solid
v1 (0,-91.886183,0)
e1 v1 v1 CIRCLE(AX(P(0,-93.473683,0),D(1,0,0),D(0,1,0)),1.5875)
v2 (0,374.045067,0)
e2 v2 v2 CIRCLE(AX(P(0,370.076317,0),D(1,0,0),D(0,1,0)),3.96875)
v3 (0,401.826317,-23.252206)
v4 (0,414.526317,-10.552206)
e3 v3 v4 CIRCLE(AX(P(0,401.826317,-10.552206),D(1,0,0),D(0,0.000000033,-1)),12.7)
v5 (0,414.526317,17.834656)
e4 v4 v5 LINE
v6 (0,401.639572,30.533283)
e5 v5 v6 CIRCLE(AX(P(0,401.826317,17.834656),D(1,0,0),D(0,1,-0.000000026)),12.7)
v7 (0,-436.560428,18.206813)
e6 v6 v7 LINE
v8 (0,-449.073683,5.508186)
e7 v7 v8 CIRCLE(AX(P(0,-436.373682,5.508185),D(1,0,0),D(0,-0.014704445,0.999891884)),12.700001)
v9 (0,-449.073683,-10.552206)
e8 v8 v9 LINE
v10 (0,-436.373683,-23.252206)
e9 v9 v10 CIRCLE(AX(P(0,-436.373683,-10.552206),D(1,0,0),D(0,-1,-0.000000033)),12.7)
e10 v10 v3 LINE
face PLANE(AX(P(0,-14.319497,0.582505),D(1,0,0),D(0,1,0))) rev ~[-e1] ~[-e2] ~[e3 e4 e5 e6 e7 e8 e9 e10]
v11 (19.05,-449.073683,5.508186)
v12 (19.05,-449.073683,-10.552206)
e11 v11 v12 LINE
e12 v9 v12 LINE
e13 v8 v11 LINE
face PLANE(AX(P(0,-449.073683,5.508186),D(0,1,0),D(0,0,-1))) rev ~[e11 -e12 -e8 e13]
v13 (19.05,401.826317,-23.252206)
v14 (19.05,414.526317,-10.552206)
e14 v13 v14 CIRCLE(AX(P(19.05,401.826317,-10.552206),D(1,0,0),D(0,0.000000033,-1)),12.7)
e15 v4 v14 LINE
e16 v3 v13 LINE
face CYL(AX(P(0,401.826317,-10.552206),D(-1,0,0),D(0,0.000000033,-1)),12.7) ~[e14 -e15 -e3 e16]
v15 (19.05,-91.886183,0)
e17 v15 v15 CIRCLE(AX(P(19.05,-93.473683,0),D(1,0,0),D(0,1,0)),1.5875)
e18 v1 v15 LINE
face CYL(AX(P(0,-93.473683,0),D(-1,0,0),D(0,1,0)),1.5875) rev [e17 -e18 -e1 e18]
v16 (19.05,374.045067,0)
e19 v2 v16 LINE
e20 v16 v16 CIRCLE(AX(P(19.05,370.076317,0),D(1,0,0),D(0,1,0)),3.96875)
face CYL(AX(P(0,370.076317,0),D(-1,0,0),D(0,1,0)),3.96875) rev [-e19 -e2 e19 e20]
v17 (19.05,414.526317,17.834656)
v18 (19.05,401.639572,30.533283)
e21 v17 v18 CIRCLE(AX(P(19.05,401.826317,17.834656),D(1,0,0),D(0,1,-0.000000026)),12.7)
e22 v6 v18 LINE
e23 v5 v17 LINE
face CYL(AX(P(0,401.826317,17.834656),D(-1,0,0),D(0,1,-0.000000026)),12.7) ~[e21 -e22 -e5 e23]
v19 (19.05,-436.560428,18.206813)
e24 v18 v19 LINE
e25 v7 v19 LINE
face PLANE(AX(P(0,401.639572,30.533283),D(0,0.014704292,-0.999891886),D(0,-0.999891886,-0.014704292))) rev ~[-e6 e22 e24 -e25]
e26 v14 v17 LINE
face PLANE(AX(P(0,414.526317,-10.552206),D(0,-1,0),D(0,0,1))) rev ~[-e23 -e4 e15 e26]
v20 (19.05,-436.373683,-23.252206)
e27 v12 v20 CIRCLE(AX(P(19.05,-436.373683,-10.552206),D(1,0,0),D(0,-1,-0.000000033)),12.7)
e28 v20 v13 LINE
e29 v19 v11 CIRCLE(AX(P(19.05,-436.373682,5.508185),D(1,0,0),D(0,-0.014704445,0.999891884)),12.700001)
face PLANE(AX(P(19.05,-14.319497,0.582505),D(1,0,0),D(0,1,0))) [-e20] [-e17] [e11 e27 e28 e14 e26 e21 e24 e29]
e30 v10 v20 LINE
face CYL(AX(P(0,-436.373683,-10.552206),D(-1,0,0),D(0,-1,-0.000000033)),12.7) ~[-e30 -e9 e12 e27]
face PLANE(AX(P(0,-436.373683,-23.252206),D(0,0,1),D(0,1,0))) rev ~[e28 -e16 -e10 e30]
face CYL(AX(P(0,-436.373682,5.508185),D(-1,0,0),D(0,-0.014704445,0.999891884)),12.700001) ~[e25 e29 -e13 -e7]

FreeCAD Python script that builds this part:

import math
import FreeCAD as App
import Part
import Sketcher
Q = App.Units.Quantity

doc = App.newDocument("Part")
params = doc.addObject("Spreadsheet::Sheet", "Params")
for row, (alias, value) in enumerate([
    ("sketch1_radius", "0.5 in"),
    ("sketch1_width", "33 in"),
    ("sketch1_diameter", "0.125 in"),
    ("sketch1_diameter2", "0.3125 in"),
    ("pad1_length", "0.75 in"),
    ("sketch2_diameter", "0.125 in"),
    ("pocket1_length", "2.07 in"),
], start=1):
    params.set(f"A{row}", alias)
    params.set(f"B{row}", "=" + value)
    params.setAlias(f"B{row}", alias)

body = doc.addObject("PartDesign::Body", "Body")

# Sketch on YZ plane
sketch1 = body.newObject("Sketcher::SketchObject", "Sketch")
sketch1.AttachmentSupport = (doc.getObject("YZ_Plane"), [""])
sketch1.MapMode = "FlatFace"
sketch1.addGeometry([
    Part.LineSegment(App.Vector(414.5, -10.6, 0), App.Vector(414.5, 17.8, 0)),  # 0
    Part.ArcOfCircle(Part.Circle(App.Vector(401.8, 17.8, 0), App.Vector(0, 0, 1), 12.7), math.radians(0), math.radians(91)),  # 1
    Part.LineSegment(App.Vector(401.6, 30.5, 0), App.Vector(-436.6, 18.2, 0)),  # 2
    Part.ArcOfCircle(Part.Circle(App.Vector(-436.4, 5.5, 0), App.Vector(0, 0, 1), 12.7), math.radians(91), math.radians(180)),  # 3
    Part.LineSegment(App.Vector(-449.1, 5.5, 0), App.Vector(-449.1, -10.6, 0)),  # 4
    Part.ArcOfCircle(Part.Circle(App.Vector(-436.4, -10.6, 0), App.Vector(0, 0, 1), 12.7), math.radians(-180), math.radians(-90)),  # 5
    Part.LineSegment(App.Vector(-436.4, -23.3, 0), App.Vector(401.8, -23.3, 0)),  # 6
    Part.ArcOfCircle(Part.Circle(App.Vector(401.8, -10.6, 0), App.Vector(0, 0, 1), 12.7), math.radians(-90), math.radians(0)),  # 7
    Part.Circle(App.Vector(-93.5, 0, 0), App.Vector(0, 0, 1), 1.6),  # 8
    Part.Circle(App.Vector(370.1, 0, 0), App.Vector(0, 0, 1), 4),  # 9
], False)
sketch1.addConstraint([
    Sketcher.Constraint("Tangent", 0, 2, 1, 1),
    Sketcher.Constraint("Tangent", 1, 2, 2, 1),
    Sketcher.Constraint("Tangent", 2, 2, 3, 1),
    Sketcher.Constraint("Tangent", 3, 2, 4, 1),
    Sketcher.Constraint("Tangent", 4, 2, 5, 1),
    Sketcher.Constraint("Tangent", 5, 2, 6, 1),
    Sketcher.Constraint("Tangent", 6, 2, 7, 1),
    Sketcher.Constraint("Tangent", 7, 2, 0, 1),
    Sketcher.Constraint("Vertical", 0),
    Sketcher.Constraint("Vertical", 4),
    Sketcher.Constraint("Horizontal", 6),
    Sketcher.Constraint("Equal", 1, 3),
    Sketcher.Constraint("Equal", 3, 5),
    Sketcher.Constraint("Equal", 5, 7),
    Sketcher.Constraint("PointOnObject", 8, 3, -1),
    Sketcher.Constraint("PointOnObject", 9, 3, -1),
    Sketcher.Constraint("Radius", 1, Q("0.5 in")),
    Sketcher.Constraint("DistanceX", 6, 1, 6, 2, Q("33 in")),
    Sketcher.Constraint("Diameter", 8, Q("0.125 in")),
    Sketcher.Constraint("Diameter", 9, Q("0.3125 in")),
    Sketcher.Constraint("DistanceX", 8, 3, 0, 2, Q("20 in")),
    Sketcher.Constraint("DistanceX", 9, 3, 7, 3, Q("1.25 in")),
    Sketcher.Constraint("DistanceY", 4, 2, 4, 1, 16.060392),
    Sketcher.Constraint("Distance", 2, 838.290631),
    Sketcher.Constraint("DistanceX", 3, 3, -1, 1, 436.373682),
    Sketcher.Constraint("DistanceY", -1, 1, 1, 3, 17.834656),
])
sketch1.setExpression("Constraints[16]", "Params.sketch1_radius")
sketch1.setExpression("Constraints[17]", "Params.sketch1_width")
sketch1.setExpression("Constraints[18]", "Params.sketch1_diameter")
sketch1.setExpression("Constraints[19]", "Params.sketch1_diameter2")
pad1 = body.newObject("PartDesign::Pad", "Pad")
pad1.Profile = sketch1
pad1.setExpression("Length", "Params.pad1_length")

# Sketch on XY plane
sketch2 = body.newObject("Sketcher::SketchObject", "Sketch001")
sketch2.AttachmentSupport = (doc.getObject("XY_Plane"), [""])
sketch2.MapMode = "FlatFace"
sketch2.AttachmentOffset = App.Placement(App.Vector(0, 0, -23.252206), App.Rotation())
sketch2.addGeometry(Part.Circle(App.Vector(9.5, 668.5, 0), App.Vector(0, 0, 1), 1.6), False)
sketch2.addConstraint([
    Sketcher.Constraint("Diameter", 0, Q("0.125 in")),
    Sketcher.Constraint("DistanceX", -1, 1, 0, 3, Q("0.375 in")),
    Sketcher.Constraint("DistanceY", -1, 1, 0, 3, 668.526317),
])
sketch2.setExpression("Constraints[0]", "Params.sketch2_diameter")
pocket1 = body.newObject("PartDesign::Pocket", "Pocket")
pocket1.Profile = sketch2
pocket1.setExpression("Length", "Params.pocket1_length")
pocket1.Reversed = True

doc.recompute()
